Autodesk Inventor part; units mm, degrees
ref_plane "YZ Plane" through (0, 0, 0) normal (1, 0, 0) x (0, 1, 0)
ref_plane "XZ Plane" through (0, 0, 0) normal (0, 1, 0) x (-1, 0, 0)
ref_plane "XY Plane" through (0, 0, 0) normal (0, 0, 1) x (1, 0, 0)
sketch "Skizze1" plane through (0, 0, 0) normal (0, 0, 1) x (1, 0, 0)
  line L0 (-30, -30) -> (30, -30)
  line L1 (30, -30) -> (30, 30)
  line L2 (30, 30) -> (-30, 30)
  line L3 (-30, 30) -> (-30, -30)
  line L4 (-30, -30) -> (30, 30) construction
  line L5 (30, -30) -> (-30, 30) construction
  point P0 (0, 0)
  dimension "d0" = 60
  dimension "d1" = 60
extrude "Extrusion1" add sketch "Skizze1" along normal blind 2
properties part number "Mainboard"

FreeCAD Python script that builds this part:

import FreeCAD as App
import Part
import Sketcher

V = App.Vector
Q = App.Units.Quantity

doc = App.newDocument("Part")
body = doc.addObject("PartDesign::Body", "Body")

sketch1 = body.newObject("Sketcher::SketchObject", "Sketch")
sketch1.AttachmentSupport = (doc.getObject("XY_Plane"), [""])
sketch1.MapMode = "FlatFace"
sketch1.addGeometry([
    Part.LineSegment(V(-30, 30, 0), V(-30, -30, 0)),
    Part.LineSegment(V(-30, -30, 0), V(30, -30, 0)),
    Part.LineSegment(V(30, -30, 0), V(30, 30, 0)),
    Part.LineSegment(V(30, 30, 0), V(-30, 30, 0)),
], False)
sketch1.addConstraint([
    Sketcher.Constraint("Coincident", 0, 2, 1, 1),
    Sketcher.Constraint("Coincident", 1, 2, 2, 1),
    Sketcher.Constraint("Coincident", 2, 2, 3, 1),
    Sketcher.Constraint("Coincident", 3, 2, 0, 1),
    Sketcher.Constraint("Vertical", 0),
    Sketcher.Constraint("Horizontal", 1),
    Sketcher.Constraint("Vertical", 2),
    Sketcher.Constraint("Horizontal", 3),
    Sketcher.Constraint("Symmetric", 0, 2, 2, 2, -1, 1),
    Sketcher.Constraint("Equal", 3, 0),
    Sketcher.Constraint("DistanceX", 1, 1, 1, 2, Q("60 mm")),
])
pad1 = body.newObject("PartDesign::Pad", "Pad")
pad1.Profile = sketch1
pad1.Length = 2

doc.recompute()
